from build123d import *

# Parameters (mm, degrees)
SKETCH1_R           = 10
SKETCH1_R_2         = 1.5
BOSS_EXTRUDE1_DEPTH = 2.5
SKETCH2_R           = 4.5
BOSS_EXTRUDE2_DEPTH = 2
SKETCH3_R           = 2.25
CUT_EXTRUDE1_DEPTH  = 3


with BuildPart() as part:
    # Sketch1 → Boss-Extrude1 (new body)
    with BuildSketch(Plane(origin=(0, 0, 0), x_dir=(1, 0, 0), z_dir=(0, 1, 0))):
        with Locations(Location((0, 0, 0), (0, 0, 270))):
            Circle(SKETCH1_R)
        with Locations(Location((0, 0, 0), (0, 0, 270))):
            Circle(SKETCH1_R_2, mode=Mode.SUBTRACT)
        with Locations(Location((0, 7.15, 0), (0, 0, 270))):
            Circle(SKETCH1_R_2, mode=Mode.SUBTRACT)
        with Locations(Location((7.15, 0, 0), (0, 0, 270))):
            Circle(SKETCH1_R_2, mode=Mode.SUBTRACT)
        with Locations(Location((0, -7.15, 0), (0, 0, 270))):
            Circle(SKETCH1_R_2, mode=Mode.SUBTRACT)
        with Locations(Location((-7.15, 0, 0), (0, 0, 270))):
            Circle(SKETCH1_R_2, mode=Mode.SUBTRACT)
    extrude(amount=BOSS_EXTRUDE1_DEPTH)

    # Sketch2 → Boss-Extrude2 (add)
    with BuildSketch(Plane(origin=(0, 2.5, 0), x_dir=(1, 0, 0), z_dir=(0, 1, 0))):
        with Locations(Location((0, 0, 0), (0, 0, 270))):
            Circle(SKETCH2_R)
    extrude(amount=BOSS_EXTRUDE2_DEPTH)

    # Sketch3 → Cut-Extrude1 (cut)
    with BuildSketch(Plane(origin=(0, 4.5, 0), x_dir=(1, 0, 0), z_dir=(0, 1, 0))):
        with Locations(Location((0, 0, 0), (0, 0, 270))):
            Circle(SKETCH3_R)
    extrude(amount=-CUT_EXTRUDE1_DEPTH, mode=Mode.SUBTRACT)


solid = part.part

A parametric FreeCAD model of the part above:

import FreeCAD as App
import Part
import Sketcher
Q = App.Units.Quantity

doc = App.newDocument("Part")
body = doc.addObject("PartDesign::Body", "Body")

sketch1 = body.newObject("Sketcher::SketchObject", "Sketch")
sketch1.AttachmentSupport = (doc.getObject("XZ_Plane"), [""])
sketch1.MapMode = "FlatFace"
sketch1.addGeometry(Part.Circle(App.Vector(0, 0, 0), App.Vector(0, 0, 1), 10), False)
sketch1.addGeometry(Part.Circle(App.Vector(-7.2, 0, 0), App.Vector(0, 0, 1), 1.5), False)
sketch1.addGeometry(Part.Circle(App.Vector(0, -7.2, 0), App.Vector(0, 0, 1), 1.5), False)
sketch1.addGeometry(Part.Circle(App.Vector(0, 0, 0), App.Vector(0, 0, 1), 1.5), False)
sketch1.addGeometry(Part.Circle(App.Vector(7.2, 0, 0), App.Vector(0, 0, 1), 1.5), False)
sketch1.addGeometry(Part.Circle(App.Vector(0, 7.2, 0), App.Vector(0, 0, 1), 1.5), False)
sketch1.addConstraint(Sketcher.Constraint("Coincident", 0, 3, -1, 1))
sketch1.addConstraint(Sketcher.Constraint("Coincident", 3, 3, -1, 1))
sketch1.addConstraint(Sketcher.Constraint("Equal", 1, 2))
sketch1.addConstraint(Sketcher.Constraint("Equal", 2, 3))
sketch1.addConstraint(Sketcher.Constraint("Equal", 3, 4))
sketch1.addConstraint(Sketcher.Constraint("Equal", 4, 5))
sketch1.addConstraint(Sketcher.Constraint("Symmetric", 1, 3, 4, 3, -1, 1))
sketch1.addConstraint(Sketcher.Constraint("Symmetric", 2, 3, 5, 3, -1, 1))
sketch1.addConstraint(Sketcher.Constraint("PointOnObject", 1, 3, -1))
sketch1.addConstraint(Sketcher.Constraint("PointOnObject", 2, 3, -2))
sketch1.addConstraint(Sketcher.Constraint("Diameter", 0, Q("20 mm")))
sketch1.addConstraint(Sketcher.Constraint("Diameter", 1, Q("3 mm")))
sketch1.addConstraint(Sketcher.Constraint("DistanceX", 1, 3, 4, 3, Q("14.3 mm")))
sketch1.addConstraint(Sketcher.Constraint("DistanceY", 2, 3, 5, 3, Q("14.3 mm")))
pad1 = body.newObject("PartDesign::Pad", "Pad")
pad1.Profile = sketch1
pad1.Length = 2.5
pad1.Reversed = True

sketch2 = body.newObject("Sketcher::SketchObject", "Sketch001")
sketch2.AttachmentSupport = (doc.getObject("XZ_Plane"), [""])
sketch2.MapMode = "FlatFace"
sketch2.AttachmentOffset = App.Placement(App.Vector(0, 0, -2.5), App.Rotation())
sketch2.addGeometry(Part.Circle(App.Vector(0, 0, 0), App.Vector(0, 0, 1), 4.5), False)
sketch2.addConstraint(Sketcher.Constraint("Coincident", 0, 3, -1, 1))
sketch2.addConstraint(Sketcher.Constraint("Diameter", 0, Q("9 mm")))
pad2 = body.newObject("PartDesign::Pad", "Pad001")
pad2.Profile = sketch2
pad2.Length = 2
pad2.Reversed = True

sketch3 = body.newObject("Sketcher::SketchObject", "Sketch002")
sketch3.AttachmentSupport = (doc.getObject("XZ_Plane"), [""])
sketch3.MapMode = "FlatFace"
sketch3.AttachmentOffset = App.Placement(App.Vector(0, 0, -4.5), App.Rotation())
sketch3.addGeometry(Part.Circle(App.Vector(0, 0, 0), App.Vector(0, 0, 1), 2.2), False)
sketch3.addConstraint(Sketcher.Constraint("Coincident", 0, 3, -1, 1))
sketch3.addConstraint(Sketcher.Constraint("Diameter", 0, Q("4.5 mm")))
pocket1 = body.newObject("PartDesign::Pocket", "Pocket")
pocket1.Profile = sketch3
pocket1.Length = 3
pocket1.Reversed = True

doc.recompute()
